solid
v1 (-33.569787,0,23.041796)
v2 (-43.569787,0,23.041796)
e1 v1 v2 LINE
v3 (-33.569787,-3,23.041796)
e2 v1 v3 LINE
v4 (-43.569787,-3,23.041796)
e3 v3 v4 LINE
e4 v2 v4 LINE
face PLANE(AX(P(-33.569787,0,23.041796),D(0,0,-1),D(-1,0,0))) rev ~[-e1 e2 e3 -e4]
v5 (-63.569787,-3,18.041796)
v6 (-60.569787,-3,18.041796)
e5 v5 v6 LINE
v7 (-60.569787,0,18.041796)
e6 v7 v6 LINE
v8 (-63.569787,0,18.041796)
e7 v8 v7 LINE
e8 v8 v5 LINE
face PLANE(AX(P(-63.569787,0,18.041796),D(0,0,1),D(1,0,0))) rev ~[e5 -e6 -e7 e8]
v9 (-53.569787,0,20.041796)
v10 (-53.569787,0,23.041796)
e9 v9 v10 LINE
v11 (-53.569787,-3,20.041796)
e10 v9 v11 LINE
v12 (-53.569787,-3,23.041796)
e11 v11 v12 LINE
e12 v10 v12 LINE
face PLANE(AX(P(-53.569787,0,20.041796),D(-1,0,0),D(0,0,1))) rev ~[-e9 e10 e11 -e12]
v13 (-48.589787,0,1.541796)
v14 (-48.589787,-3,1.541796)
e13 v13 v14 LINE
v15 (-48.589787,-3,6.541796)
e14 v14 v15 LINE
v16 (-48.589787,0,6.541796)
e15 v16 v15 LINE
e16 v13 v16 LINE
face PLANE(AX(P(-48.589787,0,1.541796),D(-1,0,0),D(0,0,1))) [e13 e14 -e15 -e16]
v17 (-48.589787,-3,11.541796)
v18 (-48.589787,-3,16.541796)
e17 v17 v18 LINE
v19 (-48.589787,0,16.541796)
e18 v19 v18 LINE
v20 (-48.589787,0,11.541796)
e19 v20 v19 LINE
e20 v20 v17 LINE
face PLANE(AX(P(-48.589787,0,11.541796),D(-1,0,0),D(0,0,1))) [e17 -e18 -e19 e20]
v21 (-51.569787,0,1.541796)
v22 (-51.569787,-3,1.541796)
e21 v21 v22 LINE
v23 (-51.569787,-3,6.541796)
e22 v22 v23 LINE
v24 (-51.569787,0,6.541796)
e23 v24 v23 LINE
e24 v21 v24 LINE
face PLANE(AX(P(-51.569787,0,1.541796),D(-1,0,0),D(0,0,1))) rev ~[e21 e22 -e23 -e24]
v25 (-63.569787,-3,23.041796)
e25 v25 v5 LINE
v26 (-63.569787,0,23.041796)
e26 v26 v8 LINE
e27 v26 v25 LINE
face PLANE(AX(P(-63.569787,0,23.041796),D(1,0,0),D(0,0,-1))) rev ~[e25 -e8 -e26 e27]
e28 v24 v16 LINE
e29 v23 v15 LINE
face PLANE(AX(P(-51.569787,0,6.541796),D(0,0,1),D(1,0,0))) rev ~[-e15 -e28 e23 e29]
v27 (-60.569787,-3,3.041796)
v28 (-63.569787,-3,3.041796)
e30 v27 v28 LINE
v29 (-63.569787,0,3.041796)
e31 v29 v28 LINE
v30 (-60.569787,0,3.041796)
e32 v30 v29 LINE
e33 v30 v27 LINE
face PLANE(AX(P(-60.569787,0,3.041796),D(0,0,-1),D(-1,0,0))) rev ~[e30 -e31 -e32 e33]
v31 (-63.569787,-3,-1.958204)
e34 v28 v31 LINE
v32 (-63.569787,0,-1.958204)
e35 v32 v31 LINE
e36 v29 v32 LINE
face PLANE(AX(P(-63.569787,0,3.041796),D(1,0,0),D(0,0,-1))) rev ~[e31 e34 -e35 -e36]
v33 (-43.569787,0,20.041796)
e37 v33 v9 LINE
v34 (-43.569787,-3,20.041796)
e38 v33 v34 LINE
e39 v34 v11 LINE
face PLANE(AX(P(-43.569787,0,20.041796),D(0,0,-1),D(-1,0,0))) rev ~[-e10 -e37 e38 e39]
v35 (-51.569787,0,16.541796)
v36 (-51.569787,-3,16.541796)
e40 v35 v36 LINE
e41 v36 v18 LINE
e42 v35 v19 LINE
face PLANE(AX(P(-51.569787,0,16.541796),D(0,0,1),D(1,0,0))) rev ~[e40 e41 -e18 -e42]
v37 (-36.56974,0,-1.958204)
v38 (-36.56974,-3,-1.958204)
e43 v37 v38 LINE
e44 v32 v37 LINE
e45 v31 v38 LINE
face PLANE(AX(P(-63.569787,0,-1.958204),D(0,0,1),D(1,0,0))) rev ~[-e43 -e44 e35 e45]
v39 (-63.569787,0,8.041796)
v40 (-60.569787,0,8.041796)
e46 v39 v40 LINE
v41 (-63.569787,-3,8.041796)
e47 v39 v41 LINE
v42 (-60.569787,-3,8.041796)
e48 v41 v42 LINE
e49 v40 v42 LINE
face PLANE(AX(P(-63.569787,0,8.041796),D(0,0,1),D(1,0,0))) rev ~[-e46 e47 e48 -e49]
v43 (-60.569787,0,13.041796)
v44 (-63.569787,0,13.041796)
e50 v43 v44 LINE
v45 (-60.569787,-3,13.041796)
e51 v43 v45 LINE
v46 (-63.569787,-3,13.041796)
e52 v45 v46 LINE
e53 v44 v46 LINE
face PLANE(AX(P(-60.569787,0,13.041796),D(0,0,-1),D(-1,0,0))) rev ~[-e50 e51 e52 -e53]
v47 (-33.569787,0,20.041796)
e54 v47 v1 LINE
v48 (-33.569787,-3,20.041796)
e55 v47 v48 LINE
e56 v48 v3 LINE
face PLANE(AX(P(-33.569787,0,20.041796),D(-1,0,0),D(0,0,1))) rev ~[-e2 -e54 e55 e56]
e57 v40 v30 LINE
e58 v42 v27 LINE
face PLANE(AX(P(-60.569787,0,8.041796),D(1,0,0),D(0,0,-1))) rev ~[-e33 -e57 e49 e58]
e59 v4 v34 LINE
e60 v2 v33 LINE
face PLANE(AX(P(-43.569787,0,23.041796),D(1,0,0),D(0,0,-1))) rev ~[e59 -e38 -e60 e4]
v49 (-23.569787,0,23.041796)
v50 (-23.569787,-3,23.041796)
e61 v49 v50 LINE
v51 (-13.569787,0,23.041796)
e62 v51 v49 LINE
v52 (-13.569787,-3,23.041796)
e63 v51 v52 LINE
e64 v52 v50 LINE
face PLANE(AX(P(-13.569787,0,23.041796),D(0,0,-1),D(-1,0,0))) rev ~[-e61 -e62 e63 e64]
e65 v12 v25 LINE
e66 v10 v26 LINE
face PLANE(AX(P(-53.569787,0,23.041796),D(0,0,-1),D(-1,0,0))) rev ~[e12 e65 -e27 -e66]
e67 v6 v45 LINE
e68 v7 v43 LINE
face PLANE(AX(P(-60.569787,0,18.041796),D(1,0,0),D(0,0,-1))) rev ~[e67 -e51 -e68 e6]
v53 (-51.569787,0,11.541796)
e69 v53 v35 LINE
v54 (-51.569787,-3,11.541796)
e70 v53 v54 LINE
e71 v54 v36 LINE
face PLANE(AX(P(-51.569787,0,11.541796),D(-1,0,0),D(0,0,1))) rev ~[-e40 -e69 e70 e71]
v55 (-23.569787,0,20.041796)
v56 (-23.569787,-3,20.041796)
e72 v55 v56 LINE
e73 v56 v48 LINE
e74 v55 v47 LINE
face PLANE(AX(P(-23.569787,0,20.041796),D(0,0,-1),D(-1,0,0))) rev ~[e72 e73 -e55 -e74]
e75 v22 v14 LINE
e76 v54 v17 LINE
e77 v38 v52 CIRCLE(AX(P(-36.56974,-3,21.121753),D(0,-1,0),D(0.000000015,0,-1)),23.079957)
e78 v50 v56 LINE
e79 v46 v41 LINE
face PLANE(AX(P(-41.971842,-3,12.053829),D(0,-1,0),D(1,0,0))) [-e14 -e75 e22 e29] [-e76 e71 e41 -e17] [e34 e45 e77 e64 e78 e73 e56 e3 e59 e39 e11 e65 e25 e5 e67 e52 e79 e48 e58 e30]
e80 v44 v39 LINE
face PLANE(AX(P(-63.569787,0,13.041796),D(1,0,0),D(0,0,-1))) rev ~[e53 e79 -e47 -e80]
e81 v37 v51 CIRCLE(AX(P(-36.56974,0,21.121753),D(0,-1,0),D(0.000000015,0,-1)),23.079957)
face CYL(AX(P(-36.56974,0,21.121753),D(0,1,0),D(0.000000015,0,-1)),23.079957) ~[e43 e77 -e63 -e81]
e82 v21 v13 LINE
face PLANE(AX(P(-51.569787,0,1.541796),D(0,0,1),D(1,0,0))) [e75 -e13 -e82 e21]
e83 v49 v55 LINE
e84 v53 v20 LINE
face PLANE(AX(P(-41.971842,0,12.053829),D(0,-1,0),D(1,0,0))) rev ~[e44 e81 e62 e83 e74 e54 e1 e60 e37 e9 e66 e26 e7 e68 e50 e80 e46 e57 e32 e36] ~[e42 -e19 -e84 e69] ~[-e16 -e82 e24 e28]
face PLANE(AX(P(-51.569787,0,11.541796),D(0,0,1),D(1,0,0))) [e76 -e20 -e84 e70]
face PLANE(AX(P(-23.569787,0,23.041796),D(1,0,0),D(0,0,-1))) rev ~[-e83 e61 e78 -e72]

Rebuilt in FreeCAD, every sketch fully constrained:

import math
import FreeCAD as App
import Part
import Sketcher


def add_polygon(sketch, points):
    """Adds a closed chain of lines whose ends are joined by coincident constraints."""
    first, n = sketch.GeometryCount, len(points)
    for a, b in zip(points, points[1:] + points[:1]):
        sketch.addGeometry(Part.LineSegment(App.Vector(*a, 0), App.Vector(*b, 0)), False)
    for i in range(n):
        sketch.addConstraint(Sketcher.Constraint("Coincident", first + i, 2, first + (i + 1) % n, 1))

doc = App.newDocument("Part")
body = doc.addObject("PartDesign::Body", "Body")

# Sketch on XZ plane
sketch1 = doc.addObject("Sketcher::SketchObject", "Sketch")
body.addObject(sketch1)
sketch1.AttachmentSupport = (doc.XZ_Plane, [""])
sketch1.MapMode = "FlatFace"
sketch1.addGeometry(Part.LineSegment(App.Vector(-63.6, -2, 0), App.Vector(-36.6, -2, 0)), False)  # 0
sketch1.addGeometry(Part.ArcOfCircle(Part.Circle(App.Vector(-36.6, 21.1, 0), App.Vector(0, 0, 1), 23.1), math.radians(-90), math.radians(5)), False)  # 1
sketch1.addGeometry(Part.LineSegment(App.Vector(-13.6, 23, 0), App.Vector(-23.6, 23, 0)), False)  # 2
sketch1.addGeometry(Part.LineSegment(App.Vector(-23.6, 23, 0), App.Vector(-23.6, 20, 0)), False)  # 3
sketch1.addGeometry(Part.LineSegment(App.Vector(-23.6, 20, 0), App.Vector(-33.6, 20, 0)), False)  # 4
sketch1.addGeometry(Part.LineSegment(App.Vector(-33.6, 20, 0), App.Vector(-33.6, 23, 0)), False)  # 5
sketch1.addGeometry(Part.LineSegment(App.Vector(-33.6, 23, 0), App.Vector(-43.6, 23, 0)), False)  # 6
sketch1.addGeometry(Part.LineSegment(App.Vector(-43.6, 23, 0), App.Vector(-43.6, 20, 0)), False)  # 7
sketch1.addGeometry(Part.LineSegment(App.Vector(-43.6, 20, 0), App.Vector(-53.6, 20, 0)), False)  # 8
sketch1.addGeometry(Part.LineSegment(App.Vector(-53.6, 20, 0), App.Vector(-53.6, 23, 0)), False)  # 9
sketch1.addGeometry(Part.LineSegment(App.Vector(-53.6, 23, 0), App.Vector(-63.6, 23, 0)), False)  # 10
sketch1.addGeometry(Part.LineSegment(App.Vector(-63.6, 23, 0), App.Vector(-63.6, 18, 0)), False)  # 11
sketch1.addGeometry(Part.LineSegment(App.Vector(-63.6, 18, 0), App.Vector(-60.6, 18, 0)), False)  # 12
sketch1.addGeometry(Part.LineSegment(App.Vector(-60.6, 18, 0), App.Vector(-60.6, 13, 0)), False)  # 13
sketch1.addGeometry(Part.LineSegment(App.Vector(-60.6, 13, 0), App.Vector(-63.6, 13, 0)), False)  # 14
sketch1.addGeometry(Part.LineSegment(App.Vector(-63.6, 13, 0), App.Vector(-63.6, 8, 0)), False)  # 15
sketch1.addGeometry(Part.LineSegment(App.Vector(-63.6, 8, 0), App.Vector(-60.6, 8, 0)), False)  # 16
sketch1.addGeometry(Part.LineSegment(App.Vector(-60.6, 8, 0), App.Vector(-60.6, 3, 0)), False)  # 17
sketch1.addGeometry(Part.LineSegment(App.Vector(-60.6, 3, 0), App.Vector(-63.6, 3, 0)), False)  # 18
sketch1.addGeometry(Part.LineSegment(App.Vector(-63.6, 3, 0), App.Vector(-63.6, -2, 0)), False)  # 19
add_polygon(sketch1, [(-48.6, 1.5), (-51.6, 1.5), (-51.6, 6.5), (-48.6, 6.5)])  # lines 20-23
add_polygon(sketch1, [(-48.6, 11.5), (-51.6, 11.5), (-51.6, 16.5), (-48.6, 16.5)])  # lines 24-27
sketch1.addConstraint(Sketcher.Constraint("Tangent", 0, 2, 1, 1))
sketch1.addConstraint(Sketcher.Constraint("Coincident", 1, 2, 2, 1))
sketch1.addConstraint(Sketcher.Constraint("Coincident", 2, 2, 3, 1))
sketch1.addConstraint(Sketcher.Constraint("Coincident", 3, 2, 4, 1))
sketch1.addConstraint(Sketcher.Constraint("Coincident", 4, 2, 5, 1))
sketch1.addConstraint(Sketcher.Constraint("Coincident", 5, 2, 6, 1))
sketch1.addConstraint(Sketcher.Constraint("Coincident", 6, 2, 7, 1))
sketch1.addConstraint(Sketcher.Constraint("Coincident", 7, 2, 8, 1))
sketch1.addConstraint(Sketcher.Constraint("Coincident", 8, 2, 9, 1))
sketch1.addConstraint(Sketcher.Constraint("Coincident", 9, 2, 10, 1))
sketch1.addConstraint(Sketcher.Constraint("Coincident", 10, 2, 11, 1))
sketch1.addConstraint(Sketcher.Constraint("Coincident", 11, 2, 12, 1))
sketch1.addConstraint(Sketcher.Constraint("Coincident", 12, 2, 13, 1))
sketch1.addConstraint(Sketcher.Constraint("Coincident", 13, 2, 14, 1))
sketch1.addConstraint(Sketcher.Constraint("Coincident", 14, 2, 15, 1))
sketch1.addConstraint(Sketcher.Constraint("Coincident", 15, 2, 16, 1))
sketch1.addConstraint(Sketcher.Constraint("Coincident", 16, 2, 17, 1))
sketch1.addConstraint(Sketcher.Constraint("Coincident", 17, 2, 18, 1))
sketch1.addConstraint(Sketcher.Constraint("Coincident", 18, 2, 19, 1))
sketch1.addConstraint(Sketcher.Constraint("Coincident", 19, 2, 0, 1))
sketch1.addConstraint(Sketcher.Constraint("Horizontal", 0))
sketch1.addConstraint(Sketcher.Constraint("Horizontal", 2))
sketch1.addConstraint(Sketcher.Constraint("Vertical", 3))
sketch1.addConstraint(Sketcher.Constraint("Horizontal", 4))
sketch1.addConstraint(Sketcher.Constraint("Vertical", 5))
sketch1.addConstraint(Sketcher.Constraint("Horizontal", 6))
sketch1.addConstraint(Sketcher.Constraint("Vertical", 7))
sketch1.addConstraint(Sketcher.Constraint("Horizontal", 8))
sketch1.addConstraint(Sketcher.Constraint("Vertical", 9))
sketch1.addConstraint(Sketcher.Constraint("Horizontal", 10))
sketch1.addConstraint(Sketcher.Constraint("Vertical", 11))
sketch1.addConstraint(Sketcher.Constraint("Horizontal", 12))
sketch1.addConstraint(Sketcher.Constraint("Vertical", 13))
sketch1.addConstraint(Sketcher.Constraint("Horizontal", 14))
sketch1.addConstraint(Sketcher.Constraint("Vertical", 15))
sketch1.addConstraint(Sketcher.Constraint("Horizontal", 16))
sketch1.addConstraint(Sketcher.Constraint("Vertical", 17))
sketch1.addConstraint(Sketcher.Constraint("Horizontal", 18))
sketch1.addConstraint(Sketcher.Constraint("Vertical", 19))
sketch1.addConstraint(Sketcher.Constraint("Horizontal", 20))
sketch1.addConstraint(Sketcher.Constraint("Vertical", 21))
sketch1.addConstraint(Sketcher.Constraint("Horizontal", 22))
sketch1.addConstraint(Sketcher.Constraint("Vertical", 23))
sketch1.addConstraint(Sketcher.Constraint("Horizontal", 24))
sketch1.addConstraint(Sketcher.Constraint("Vertical", 25))
sketch1.addConstraint(Sketcher.Constraint("Horizontal", 26))
sketch1.addConstraint(Sketcher.Constraint("Vertical", 27))
sketch1.addConstraint(Sketcher.Constraint("Horizontal", 2, 2, 5, 2))
sketch1.addConstraint(Sketcher.Constraint("Horizontal", 4, 2, 7, 2))
sketch1.addConstraint(Sketcher.Constraint("Horizontal", 6, 2, 9, 2))
sketch1.addConstraint(Sketcher.Constraint("Vertical", 11, 2, 14, 2))
sketch1.addConstraint(Sketcher.Constraint("Vertical", 13, 2, 16, 2))
sketch1.addConstraint(Sketcher.Constraint("Vertical", 15, 2, 18, 2))
sketch1.addConstraint(Sketcher.Constraint("Vertical", 21, 2, 24, 2))
sketch1.addConstraint(Sketcher.Constraint("Vertical", 23, 2, 26, 2))
sketch1.addConstraint(Sketcher.Constraint("Equal", 2, 4))
sketch1.addConstraint(Sketcher.Constraint("Equal", 4, 6))
sketch1.addConstraint(Sketcher.Constraint("Equal", 6, 8))
sketch1.addConstraint(Sketcher.Constraint("Equal", 8, 10))
sketch1.addConstraint(Sketcher.Constraint("Equal", 18, 3))
sketch1.addConstraint(Sketcher.Constraint("Equal", 11, 13))
sketch1.addConstraint(Sketcher.Constraint("Equal", 13, 15))
sketch1.addConstraint(Sketcher.Constraint("Equal", 15, 17))
sketch1.addConstraint(Sketcher.Constraint("Equal", 17, 19))
sketch1.addConstraint(Sketcher.Constraint("Equal", 19, 21))
sketch1.addConstraint(Sketcher.Constraint("Equal", 23, 25))
sketch1.addConstraint(Sketcher.Constraint("DistanceX", 2, 2, 2, 1, 10.0))
sketch1.addConstraint(Sketcher.Constraint("DistanceX", 12, 1, 12, 2, 3.0))
sketch1.addConstraint(Sketcher.Constraint("DistanceY", 11, 2, 11, 1, 5.0))
sketch1.addConstraint(Sketcher.Constraint("DistanceX", 17, 2, 20, 2, 9.0))
sketch1.addConstraint(Sketcher.Constraint("DistanceY", 21, 2, 24, 2, 5.0))
sketch1.addConstraint(Sketcher.Constraint("DistanceX", 20, 2, 20, 1, 2.98))
sketch1.addConstraint(Sketcher.Constraint("DistanceY", 20, 2, 17, 2, 1.5))
sketch1.addConstraint(Sketcher.Constraint("Radius", 1, 23.079957))
sketch1.addConstraint(Sketcher.Constraint("DistanceX", 1, 3, -1, 1, 36.56974))
sketch1.addConstraint(Sketcher.Constraint("DistanceY", -1, 1, 1, 3, 21.121753))
pad1 = doc.addObject("PartDesign::Pad", "Pad")
body.addObject(pad1)
pad1.Profile = sketch1
pad1.Length = 3

doc.recompute()
